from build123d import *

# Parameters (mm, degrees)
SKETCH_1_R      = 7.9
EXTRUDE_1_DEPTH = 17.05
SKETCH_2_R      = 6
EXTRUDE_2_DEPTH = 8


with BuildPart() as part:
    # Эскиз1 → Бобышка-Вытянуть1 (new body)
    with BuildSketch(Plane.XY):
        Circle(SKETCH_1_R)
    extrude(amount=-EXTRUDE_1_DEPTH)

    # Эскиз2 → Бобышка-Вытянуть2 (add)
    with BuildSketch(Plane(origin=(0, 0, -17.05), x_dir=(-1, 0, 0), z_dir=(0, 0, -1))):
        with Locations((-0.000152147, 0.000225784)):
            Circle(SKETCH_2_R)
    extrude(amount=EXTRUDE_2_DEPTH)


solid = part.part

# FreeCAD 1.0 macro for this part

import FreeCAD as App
import Part
import Sketcher

V = App.Vector
Q = App.Units.Quantity

doc = App.newDocument("Part")
body = doc.addObject("PartDesign::Body", "Body")

# Sketch on XY plane
sketch1 = body.newObject("Sketcher::SketchObject", "Sketch")
sketch1.AttachmentSupport = (doc.getObject("XY_Plane"), [""])
sketch1.MapMode = "FlatFace"
sketch1.addGeometry(Part.Circle(V(0, 0, 0), V(0, 0, 1), 8), False)
sketch1.addConstraint([
    Sketcher.Constraint("Coincident", 0, 3, -1, 1),
    Sketcher.Constraint("Diameter", 0, Q("15.8 mm")),
])
pad1 = body.newObject("PartDesign::Pad", "Pad")
pad1.Profile = sketch1
pad1.Length = 17.05
pad1.Reversed = True

# Sketch on XY plane
sketch2 = body.newObject("Sketcher::SketchObject", "Sketch001")
sketch2.AttachmentSupport = (doc.getObject("XY_Plane"), [""])
sketch2.MapMode = "FlatFace"
sketch2.AttachmentOffset = App.Placement(V(0, 0, -17.05), App.Rotation())
sketch2.addGeometry(Part.Circle(V(0, 0, 0), V(0, 0, 1), 6), False)
sketch2.addConstraint([
    Sketcher.Constraint("Diameter", 0, Q("12 mm")),
    Sketcher.Constraint("DistanceX", -1, 1, 0, 3, Q("0.000152 mm")),
    Sketcher.Constraint("DistanceY", -1, 1, 0, 3, Q("0.000226 mm")),
])
pad2 = body.newObject("PartDesign::Pad", "Pad001")
pad2.Profile = sketch2
pad2.Length = 8
pad2.Reversed = True

doc.recompute()
